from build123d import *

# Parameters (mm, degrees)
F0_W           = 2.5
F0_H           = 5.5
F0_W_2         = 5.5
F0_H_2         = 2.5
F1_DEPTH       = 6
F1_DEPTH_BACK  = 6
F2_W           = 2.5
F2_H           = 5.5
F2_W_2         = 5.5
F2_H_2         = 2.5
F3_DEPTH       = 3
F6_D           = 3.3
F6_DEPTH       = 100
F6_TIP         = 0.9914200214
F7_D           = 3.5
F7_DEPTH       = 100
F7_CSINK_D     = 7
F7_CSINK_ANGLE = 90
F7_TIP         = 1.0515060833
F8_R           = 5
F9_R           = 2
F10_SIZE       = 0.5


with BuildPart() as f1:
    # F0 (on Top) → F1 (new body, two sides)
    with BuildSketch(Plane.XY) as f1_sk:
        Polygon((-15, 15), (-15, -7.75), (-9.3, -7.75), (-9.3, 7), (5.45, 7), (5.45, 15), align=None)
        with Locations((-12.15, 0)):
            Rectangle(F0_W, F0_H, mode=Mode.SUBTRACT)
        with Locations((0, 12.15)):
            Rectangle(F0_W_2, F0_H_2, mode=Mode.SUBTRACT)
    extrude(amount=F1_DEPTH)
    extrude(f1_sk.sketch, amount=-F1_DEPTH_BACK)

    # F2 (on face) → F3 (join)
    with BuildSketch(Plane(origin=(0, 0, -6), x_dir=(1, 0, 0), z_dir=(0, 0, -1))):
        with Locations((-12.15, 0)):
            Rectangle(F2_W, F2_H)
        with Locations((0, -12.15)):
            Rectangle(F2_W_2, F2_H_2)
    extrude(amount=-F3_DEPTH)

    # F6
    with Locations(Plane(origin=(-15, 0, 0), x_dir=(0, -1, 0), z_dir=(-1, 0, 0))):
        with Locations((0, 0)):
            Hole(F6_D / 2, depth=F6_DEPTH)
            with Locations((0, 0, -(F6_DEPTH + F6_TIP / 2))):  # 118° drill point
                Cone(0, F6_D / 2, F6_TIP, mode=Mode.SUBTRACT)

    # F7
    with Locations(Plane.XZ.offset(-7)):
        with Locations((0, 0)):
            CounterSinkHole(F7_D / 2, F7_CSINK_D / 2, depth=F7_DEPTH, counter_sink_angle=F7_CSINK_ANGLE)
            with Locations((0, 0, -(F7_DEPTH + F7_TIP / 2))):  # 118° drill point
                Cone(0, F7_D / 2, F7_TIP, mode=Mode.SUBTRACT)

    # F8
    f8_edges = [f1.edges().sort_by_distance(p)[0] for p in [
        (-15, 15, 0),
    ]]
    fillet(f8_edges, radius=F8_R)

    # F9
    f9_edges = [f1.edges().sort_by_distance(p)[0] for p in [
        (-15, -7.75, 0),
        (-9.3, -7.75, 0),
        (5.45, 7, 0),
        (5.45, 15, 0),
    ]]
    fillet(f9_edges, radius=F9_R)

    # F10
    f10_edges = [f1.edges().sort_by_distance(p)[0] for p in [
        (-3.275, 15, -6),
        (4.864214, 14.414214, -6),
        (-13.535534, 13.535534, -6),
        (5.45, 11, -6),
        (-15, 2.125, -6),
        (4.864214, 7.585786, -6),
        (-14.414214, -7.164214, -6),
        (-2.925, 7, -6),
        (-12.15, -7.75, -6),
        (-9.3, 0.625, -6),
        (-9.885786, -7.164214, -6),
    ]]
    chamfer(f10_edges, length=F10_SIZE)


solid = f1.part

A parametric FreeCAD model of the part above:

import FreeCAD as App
import Part
import Sketcher


def edges_at(feature, points):
    """Names of the edges that pass closest to the given points."""
    edges = feature.Shape.Edges
    near = lambda p: min(range(len(edges)), key=lambda i: edges[i].distToShape(Part.Vertex(*p))[0])
    return sorted({f"Edge{near(p) + 1}" for p in points})


def add_polygon(sketch, points):
    """Adds a closed chain of lines whose ends are joined by coincident constraints."""
    first, n = sketch.GeometryCount, len(points)
    for a, b in zip(points, points[1:] + points[:1]):
        sketch.addGeometry(Part.LineSegment(App.Vector(*a, 0), App.Vector(*b, 0)), False)
    for i in range(n):
        sketch.addConstraint(Sketcher.Constraint("Coincident", first + i, 2, first + (i + 1) % n, 1))

doc = App.newDocument("Part")
body = doc.addObject("PartDesign::Body", "Body")

# Sketch on XY plane
sketch1 = doc.addObject("Sketcher::SketchObject", "Sketch")
body.addObject(sketch1)
sketch1.AttachmentSupport = (doc.XY_Plane, [""])
sketch1.MapMode = "FlatFace"
add_polygon(sketch1, [(-15, 15), (-15, -7.8), (-9.3, -7.8), (-9.3, 7), (5.5, 7), (5.5, 15)])  # lines 0-5
add_polygon(sketch1, [(-10.9, -2.8), (-13.4, -2.8), (-13.4, 2.8), (-10.9, 2.8)])  # lines 6-9
add_polygon(sketch1, [(2.8, 10.9), (-2.8, 10.9), (-2.8, 13.4), (2.8, 13.4)])  # lines 10-13
sketch1.addConstraint([
    Sketcher.Constraint("Vertical", 0),
    Sketcher.Constraint("Horizontal", 1),
    Sketcher.Constraint("Vertical", 2),
    Sketcher.Constraint("Horizontal", 3),
    Sketcher.Constraint("Vertical", 4),
    Sketcher.Constraint("Horizontal", 5),
    Sketcher.Constraint("Horizontal", 6),
    Sketcher.Constraint("Vertical", 7),
    Sketcher.Constraint("Horizontal", 8),
    Sketcher.Constraint("Vertical", 9),
    Sketcher.Constraint("Horizontal", 10),
    Sketcher.Constraint("Vertical", 11),
    Sketcher.Constraint("Horizontal", 12),
    Sketcher.Constraint("Vertical", 13),
    Sketcher.Constraint("Equal", 3, 2),
    Sketcher.Constraint("Equal", 12, 7),
    Sketcher.Constraint("Equal", 8, 11),
    Sketcher.Constraint("DistanceY", 4, 1, 4, 2, 8.0),
    Sketcher.Constraint("DistanceX", 1, 1, 1, 2, 5.7),
    Sketcher.Constraint("DistanceX", 6, 2, 6, 1, 2.5),
    Sketcher.Constraint("DistanceX", 10, 2, 10, 1, 5.5),
    Sketcher.Constraint("DistanceX", 0, 2, -1, 1, 15.0),
    Sketcher.Constraint("DistanceY", -1, 1, 2, 2, 7.0),
    Sketcher.Constraint("DistanceY", 0, 2, 6, 2, 5.0),
    Sketcher.Constraint("DistanceX", 3, 1, 3, 2, 14.75),
    Sketcher.Constraint("DistanceX", 6, 2, -1, 1, 13.4),
    Sketcher.Constraint("DistanceY", -1, 1, 10, 2, 10.9),
    Sketcher.Constraint("DistanceX", 10, 2, 3, 2, 8.2),
])
pad1 = doc.addObject("PartDesign::Pad", "Pad")
body.addObject(pad1)
pad1.Profile = sketch1
pad1.Type = "TwoLengths"
pad1.Length = 6
pad1.Length2 = 6

# Sketch on XY plane
sketch2 = doc.addObject("Sketcher::SketchObject", "Sketch001")
body.addObject(sketch2)
sketch2.AttachmentSupport = (doc.XY_Plane, [""])
sketch2.MapMode = "FlatFace"
sketch2.AttachmentOffset = App.Placement(App.Vector(0, 0, -6), App.Rotation())
add_polygon(sketch2, [(-13.4, -2.8), (-13.4, 2.8), (-10.9, 2.8), (-10.9, -2.8)])  # lines 0-3
add_polygon(sketch2, [(-2.8, 10.9), (-2.8, 13.4), (2.8, 13.4), (2.8, 10.9)])  # lines 4-7
sketch2.addConstraint([
    Sketcher.Constraint("Vertical", 0),
    Sketcher.Constraint("Horizontal", 1),
    Sketcher.Constraint("Vertical", 2),
    Sketcher.Constraint("Horizontal", 3),
    Sketcher.Constraint("Vertical", 4),
    Sketcher.Constraint("Horizontal", 5),
    Sketcher.Constraint("Vertical", 6),
    Sketcher.Constraint("Horizontal", 7),
    Sketcher.Constraint("Equal", 7, 0),
    Sketcher.Constraint("Equal", 3, 4),
    Sketcher.Constraint("DistanceX", 1, 1, 1, 2, 2.5),
    Sketcher.Constraint("DistanceX", 5, 1, 5, 2, 5.5),
    Sketcher.Constraint("DistanceX", 0, 2, -1, 1, 13.4),
    Sketcher.Constraint("DistanceY", -1, 1, 4, 2, 13.4),
    Sketcher.Constraint("DistanceY", -1, 1, 0, 2, 2.75),
    Sketcher.Constraint("DistanceX", 4, 2, -1, 1, 2.75),
])
pad2 = doc.addObject("PartDesign::Pad", "Pad001")
body.addObject(pad2)
pad2.Profile = sketch2
pad2.Length = 3

# Sketch on YZ plane
sketch3 = doc.addObject("Sketcher::SketchObject", "Sketch002")
body.addObject(sketch3)
sketch3.AttachmentSupport = (doc.YZ_Plane, [""])
sketch3.MapMode = "FlatFace"
sketch3.AttachmentOffset = App.Placement(App.Vector(0, 0, -15), App.Rotation())
sketch3.addGeometry(Part.Circle(App.Vector(0, 0, 0), App.Vector(0, 0, 1), 1.6), False)
sketch3.addConstraint([
    Sketcher.Constraint("Coincident", 0, 3, -1, 1),
    Sketcher.Constraint("Diameter", 0, 3.3),
])
doc.recompute()
hole = doc.addObject("PartDesign::Hole", "Hole")
body.addObject(hole)
hole.Profile = sketch3
hole.ThreadType = "None"
hole.Diameter = 3.3
hole.DepthType = "Dimension"
hole.Depth = 100
hole.DrillPoint = "Angled"
hole.DrillPointAngle = 118
hole.Reversed = True

# Sketch on XZ plane
sketch4 = doc.addObject("Sketcher::SketchObject", "Sketch003")
body.addObject(sketch4)
sketch4.AttachmentSupport = (doc.XZ_Plane, [""])
sketch4.MapMode = "FlatFace"
sketch4.AttachmentOffset = App.Placement(App.Vector(0, 0, -7), App.Rotation())
sketch4.addGeometry(Part.Circle(App.Vector(0, 0, 0), App.Vector(0, 0, 1), 1.8), False)
sketch4.addConstraint([
    Sketcher.Constraint("Coincident", 0, 3, -1, 1),
    Sketcher.Constraint("Diameter", 0, 3.5),
])
doc.recompute()
hole2 = doc.addObject("PartDesign::Hole", "Hole001")
body.addObject(hole2)
hole2.Profile = sketch4
hole2.ThreadType = "None"
hole2.Diameter = 3.5
hole2.DepthType = "Dimension"
hole2.Depth = 100
hole2.DrillPoint = "Angled"
hole2.DrillPointAngle = 118
hole2.HoleCutType = "Countersink"
hole2.HoleCutDiameter = 7
hole2.HoleCutCountersinkAngle = 90
doc.recompute()

fillet = doc.addObject("PartDesign::Fillet", "Fillet")
body.addObject(fillet)
fillet.Base = (hole2, edges_at(hole2, [(-15, 15, 0)]))
fillet.Radius = 5
doc.recompute()

fillet2 = doc.addObject("PartDesign::Fillet", "Fillet001")
body.addObject(fillet2)
fillet2.Base = (fillet, edges_at(fillet, [
    (-15, -7.75, 0),
    (-9.3, -7.75, 0),
    (5.45, 7, 0),
    (5.45, 15, 0),
]))
fillet2.Radius = 2
doc.recompute()

chamfer = doc.addObject("PartDesign::Chamfer", "Chamfer")
body.addObject(chamfer)
chamfer.Base = (fillet2, edges_at(fillet2, [
    (-3.275, 15, -6),
    (4.864, 14.414, -6),
    (-13.536, 13.536, -6),
    (5.45, 11, -6),
    (-15, 2.125, -6),
    (4.864, 7.586, -6),
    (-14.414, -7.164, -6),
    (-2.925, 7, -6),
    (-12.15, -7.75, -6),
    (-9.3, 0.625, -6),
    (-9.886, -7.164, -6),
]))
chamfer.Size = 0.5

doc.recompute()
